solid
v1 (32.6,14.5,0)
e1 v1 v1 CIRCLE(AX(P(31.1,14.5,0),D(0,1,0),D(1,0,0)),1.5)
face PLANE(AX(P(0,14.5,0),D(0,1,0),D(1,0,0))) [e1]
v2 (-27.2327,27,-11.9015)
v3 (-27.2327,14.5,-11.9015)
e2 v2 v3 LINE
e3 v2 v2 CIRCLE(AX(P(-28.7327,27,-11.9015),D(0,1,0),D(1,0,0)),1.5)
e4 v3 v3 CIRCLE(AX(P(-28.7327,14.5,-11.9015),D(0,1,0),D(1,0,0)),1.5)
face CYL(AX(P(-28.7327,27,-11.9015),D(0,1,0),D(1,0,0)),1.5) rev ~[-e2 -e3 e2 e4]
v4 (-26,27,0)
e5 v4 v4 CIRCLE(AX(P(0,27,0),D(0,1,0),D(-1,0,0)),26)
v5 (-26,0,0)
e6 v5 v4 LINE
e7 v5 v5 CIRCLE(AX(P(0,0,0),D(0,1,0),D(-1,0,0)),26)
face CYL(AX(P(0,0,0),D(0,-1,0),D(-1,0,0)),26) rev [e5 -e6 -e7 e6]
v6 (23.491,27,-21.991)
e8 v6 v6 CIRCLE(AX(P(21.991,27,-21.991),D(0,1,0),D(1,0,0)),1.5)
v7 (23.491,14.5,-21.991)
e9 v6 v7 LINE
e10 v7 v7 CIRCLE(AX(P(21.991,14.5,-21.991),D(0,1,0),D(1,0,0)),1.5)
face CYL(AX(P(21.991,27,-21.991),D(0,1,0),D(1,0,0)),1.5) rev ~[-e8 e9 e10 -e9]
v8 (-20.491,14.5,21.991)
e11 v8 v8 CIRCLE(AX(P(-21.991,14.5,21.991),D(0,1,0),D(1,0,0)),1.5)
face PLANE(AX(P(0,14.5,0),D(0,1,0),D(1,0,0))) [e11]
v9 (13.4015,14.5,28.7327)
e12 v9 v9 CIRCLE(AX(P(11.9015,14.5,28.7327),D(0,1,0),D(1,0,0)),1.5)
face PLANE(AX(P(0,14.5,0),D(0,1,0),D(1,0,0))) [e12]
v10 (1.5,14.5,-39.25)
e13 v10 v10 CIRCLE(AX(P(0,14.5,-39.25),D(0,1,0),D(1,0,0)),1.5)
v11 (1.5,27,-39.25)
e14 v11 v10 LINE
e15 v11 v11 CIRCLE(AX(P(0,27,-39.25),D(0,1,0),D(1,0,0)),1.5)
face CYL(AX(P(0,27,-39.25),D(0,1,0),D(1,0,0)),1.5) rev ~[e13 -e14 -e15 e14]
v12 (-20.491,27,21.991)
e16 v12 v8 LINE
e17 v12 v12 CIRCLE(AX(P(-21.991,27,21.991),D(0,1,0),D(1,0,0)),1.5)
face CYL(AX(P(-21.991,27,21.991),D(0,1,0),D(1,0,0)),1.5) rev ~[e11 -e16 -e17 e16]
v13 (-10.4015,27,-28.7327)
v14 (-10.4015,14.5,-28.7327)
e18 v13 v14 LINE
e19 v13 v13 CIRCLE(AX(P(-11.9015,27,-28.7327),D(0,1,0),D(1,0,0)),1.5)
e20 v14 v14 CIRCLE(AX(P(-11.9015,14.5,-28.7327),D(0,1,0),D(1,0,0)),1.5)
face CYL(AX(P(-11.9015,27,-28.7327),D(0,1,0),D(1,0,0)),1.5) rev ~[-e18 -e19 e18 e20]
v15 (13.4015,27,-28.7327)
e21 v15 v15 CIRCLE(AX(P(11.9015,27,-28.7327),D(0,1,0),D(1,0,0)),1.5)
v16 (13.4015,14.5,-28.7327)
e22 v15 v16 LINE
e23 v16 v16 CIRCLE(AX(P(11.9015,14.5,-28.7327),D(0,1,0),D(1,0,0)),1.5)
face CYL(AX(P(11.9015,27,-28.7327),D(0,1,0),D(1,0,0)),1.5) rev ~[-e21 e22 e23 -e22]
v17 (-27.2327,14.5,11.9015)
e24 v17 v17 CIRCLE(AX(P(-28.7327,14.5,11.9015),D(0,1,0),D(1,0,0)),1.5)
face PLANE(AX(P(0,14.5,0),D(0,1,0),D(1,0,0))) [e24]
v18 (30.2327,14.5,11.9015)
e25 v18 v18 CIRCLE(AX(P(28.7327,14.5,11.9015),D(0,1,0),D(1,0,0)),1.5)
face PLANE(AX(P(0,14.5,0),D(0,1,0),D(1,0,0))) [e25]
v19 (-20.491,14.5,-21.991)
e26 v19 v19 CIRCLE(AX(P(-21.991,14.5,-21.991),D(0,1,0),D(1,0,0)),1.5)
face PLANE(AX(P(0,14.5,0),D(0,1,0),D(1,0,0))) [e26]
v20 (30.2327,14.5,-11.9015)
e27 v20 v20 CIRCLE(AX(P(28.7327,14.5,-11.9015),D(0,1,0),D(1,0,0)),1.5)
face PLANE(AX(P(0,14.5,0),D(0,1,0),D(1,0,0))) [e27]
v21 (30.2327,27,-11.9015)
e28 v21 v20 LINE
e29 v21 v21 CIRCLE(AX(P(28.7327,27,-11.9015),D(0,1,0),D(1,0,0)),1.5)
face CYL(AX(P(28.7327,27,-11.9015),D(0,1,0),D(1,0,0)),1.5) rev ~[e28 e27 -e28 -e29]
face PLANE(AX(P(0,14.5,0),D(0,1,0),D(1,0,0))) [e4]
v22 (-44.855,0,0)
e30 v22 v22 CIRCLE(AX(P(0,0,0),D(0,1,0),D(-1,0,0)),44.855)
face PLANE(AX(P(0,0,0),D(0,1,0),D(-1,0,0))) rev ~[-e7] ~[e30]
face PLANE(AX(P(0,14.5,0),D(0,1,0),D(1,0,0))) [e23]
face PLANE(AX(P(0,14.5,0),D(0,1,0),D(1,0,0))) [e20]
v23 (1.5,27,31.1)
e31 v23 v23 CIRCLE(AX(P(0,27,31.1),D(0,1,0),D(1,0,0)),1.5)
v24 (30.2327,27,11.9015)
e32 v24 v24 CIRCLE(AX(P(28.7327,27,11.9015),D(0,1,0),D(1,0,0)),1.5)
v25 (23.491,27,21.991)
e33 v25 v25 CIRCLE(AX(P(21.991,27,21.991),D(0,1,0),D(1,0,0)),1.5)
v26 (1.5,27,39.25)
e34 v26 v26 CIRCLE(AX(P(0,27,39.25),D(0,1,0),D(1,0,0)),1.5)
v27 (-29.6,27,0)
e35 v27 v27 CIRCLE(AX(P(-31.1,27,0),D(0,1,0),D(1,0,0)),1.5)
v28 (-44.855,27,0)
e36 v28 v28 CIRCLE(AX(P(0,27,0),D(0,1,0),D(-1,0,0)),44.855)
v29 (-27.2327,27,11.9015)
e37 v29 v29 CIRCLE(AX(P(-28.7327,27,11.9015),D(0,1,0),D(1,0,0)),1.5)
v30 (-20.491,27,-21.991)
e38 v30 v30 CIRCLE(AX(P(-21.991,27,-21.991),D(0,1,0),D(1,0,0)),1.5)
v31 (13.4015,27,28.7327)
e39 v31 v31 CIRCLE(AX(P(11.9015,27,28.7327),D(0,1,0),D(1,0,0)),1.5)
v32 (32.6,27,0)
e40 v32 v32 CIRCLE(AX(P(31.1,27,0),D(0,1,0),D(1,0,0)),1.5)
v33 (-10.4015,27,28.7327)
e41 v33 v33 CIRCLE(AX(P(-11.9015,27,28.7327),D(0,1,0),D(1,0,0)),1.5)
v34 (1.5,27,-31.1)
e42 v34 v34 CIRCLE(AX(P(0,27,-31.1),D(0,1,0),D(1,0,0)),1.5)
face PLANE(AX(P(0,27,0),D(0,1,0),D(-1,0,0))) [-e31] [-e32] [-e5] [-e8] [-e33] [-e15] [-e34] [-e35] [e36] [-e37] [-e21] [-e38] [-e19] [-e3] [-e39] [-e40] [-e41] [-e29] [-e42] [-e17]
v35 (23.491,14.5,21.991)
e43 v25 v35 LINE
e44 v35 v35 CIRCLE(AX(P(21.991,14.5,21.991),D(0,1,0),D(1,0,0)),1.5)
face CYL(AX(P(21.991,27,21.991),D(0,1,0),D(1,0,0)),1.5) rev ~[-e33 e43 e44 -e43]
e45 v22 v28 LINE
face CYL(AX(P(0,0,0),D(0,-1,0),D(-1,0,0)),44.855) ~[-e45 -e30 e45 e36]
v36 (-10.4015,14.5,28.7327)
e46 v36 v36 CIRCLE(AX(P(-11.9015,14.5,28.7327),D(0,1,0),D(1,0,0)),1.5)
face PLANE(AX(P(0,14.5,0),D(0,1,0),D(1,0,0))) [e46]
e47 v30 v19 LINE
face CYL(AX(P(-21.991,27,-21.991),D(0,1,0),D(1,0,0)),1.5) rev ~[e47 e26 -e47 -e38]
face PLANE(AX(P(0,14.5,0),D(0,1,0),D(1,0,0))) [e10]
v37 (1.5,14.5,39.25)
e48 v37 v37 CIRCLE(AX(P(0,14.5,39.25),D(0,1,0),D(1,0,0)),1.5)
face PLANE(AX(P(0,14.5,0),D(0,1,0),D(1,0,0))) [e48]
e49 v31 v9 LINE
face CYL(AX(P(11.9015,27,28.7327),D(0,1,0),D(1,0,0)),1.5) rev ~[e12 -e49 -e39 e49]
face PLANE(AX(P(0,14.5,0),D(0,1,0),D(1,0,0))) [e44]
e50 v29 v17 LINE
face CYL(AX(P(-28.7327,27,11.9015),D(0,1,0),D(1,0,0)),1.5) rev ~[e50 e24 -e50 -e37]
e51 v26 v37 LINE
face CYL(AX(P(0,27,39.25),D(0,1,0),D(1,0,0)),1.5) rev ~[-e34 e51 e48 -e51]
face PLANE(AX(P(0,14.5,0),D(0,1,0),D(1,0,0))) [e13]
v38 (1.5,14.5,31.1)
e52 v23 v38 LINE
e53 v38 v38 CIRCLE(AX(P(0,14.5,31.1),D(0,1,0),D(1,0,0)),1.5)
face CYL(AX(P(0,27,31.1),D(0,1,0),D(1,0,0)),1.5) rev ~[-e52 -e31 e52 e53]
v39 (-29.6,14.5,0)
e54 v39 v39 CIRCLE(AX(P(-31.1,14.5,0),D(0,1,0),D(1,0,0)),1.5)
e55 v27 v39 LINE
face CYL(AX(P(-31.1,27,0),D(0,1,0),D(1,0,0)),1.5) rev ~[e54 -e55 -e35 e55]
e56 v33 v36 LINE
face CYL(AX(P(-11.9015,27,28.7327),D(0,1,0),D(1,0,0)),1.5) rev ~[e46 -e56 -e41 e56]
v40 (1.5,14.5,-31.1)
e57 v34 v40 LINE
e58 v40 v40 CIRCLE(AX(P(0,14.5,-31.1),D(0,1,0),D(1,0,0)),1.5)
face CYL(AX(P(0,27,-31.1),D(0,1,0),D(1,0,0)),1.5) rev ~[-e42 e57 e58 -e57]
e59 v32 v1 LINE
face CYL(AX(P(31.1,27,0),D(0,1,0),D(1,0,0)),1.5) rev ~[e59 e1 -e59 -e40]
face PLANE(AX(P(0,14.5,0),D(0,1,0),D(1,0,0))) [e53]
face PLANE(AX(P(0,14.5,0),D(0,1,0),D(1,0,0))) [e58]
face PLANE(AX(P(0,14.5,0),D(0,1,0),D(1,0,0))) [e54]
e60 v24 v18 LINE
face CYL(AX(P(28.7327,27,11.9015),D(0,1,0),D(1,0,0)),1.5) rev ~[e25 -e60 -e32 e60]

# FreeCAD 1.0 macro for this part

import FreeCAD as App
import Part
import Sketcher
Q = App.Units.Quantity

doc = App.newDocument("Part")
params = doc.addObject("Spreadsheet::Sheet", "Params")
for row, (alias, value) in enumerate([
    ("sketch1_diameter", "52 mm"),
    ("sketch1_diameter2", "89.71 mm"),
    ("pad1_length", "27 mm"),
    ("sketch2_diameter", "3 mm"),
    ("pocket1_length", "12.5 mm"),
], start=1):
    params.set(f"A{row}", alias)
    params.set(f"B{row}", "=" + value)
    params.setAlias(f"B{row}", alias)

body = doc.addObject("PartDesign::Body", "Body")

# Sketch on XZ plane
sketch1 = doc.addObject("Sketcher::SketchObject", "Sketch")
body.addObject(sketch1)
sketch1.AttachmentSupport = (doc.XZ_Plane, [""])
sketch1.MapMode = "FlatFace"
sketch1.addGeometry(Part.Circle(App.Vector(0, 0, 0), App.Vector(0, 0, 1), 44.855), False)
sketch1.addGeometry(Part.Circle(App.Vector(0, 0, 0), App.Vector(0, 0, 1), 26), False)
sketch1.addConstraint(Sketcher.Constraint("Coincident", 0, 3, -1, 1))
sketch1.addConstraint(Sketcher.Constraint("Coincident", 1, 3, -1, 1))
sketch1.addConstraint(Sketcher.Constraint("Diameter", 1, Q("52 mm")))
sketch1.addConstraint(Sketcher.Constraint("Diameter", 0, Q("89.71 mm")))
sketch1.setExpression("Constraints[2]", "Params.sketch1_diameter")
sketch1.setExpression("Constraints[3]", "Params.sketch1_diameter2")
pad1 = doc.addObject("PartDesign::Pad", "Pad")
body.addObject(pad1)
pad1.Profile = sketch1
pad1.setExpression("Length", "Params.pad1_length")
pad1.Reversed = True

# Sketch on XZ plane
sketch2 = doc.addObject("Sketcher::SketchObject", "Sketch001")
body.addObject(sketch2)
sketch2.AttachmentSupport = (doc.XZ_Plane, [""])
sketch2.MapMode = "FlatFace"
sketch2.AttachmentOffset = App.Placement(App.Vector(0, 0, -27), App.Rotation())
sketch2.addGeometry(Part.Circle(App.Vector(0, -31.1, 0), App.Vector(0, 0, 1), 1.5), False)
sketch2.addGeometry(Part.Circle(App.Vector(-11.9015, -28.7327, 0), App.Vector(0, 0, 1), 1.5), False)
sketch2.addGeometry(Part.Circle(App.Vector(-21.991, -21.991, 0), App.Vector(0, 0, 1), 1.5), False)
sketch2.addGeometry(Part.Circle(App.Vector(-28.7327, -11.9015, 0), App.Vector(0, 0, 1), 1.5), False)
sketch2.addGeometry(Part.Circle(App.Vector(-31.1, 0, 0), App.Vector(0, 0, 1), 1.5), False)
sketch2.addGeometry(Part.Circle(App.Vector(-28.7327, 11.9015, 0), App.Vector(0, 0, 1), 1.5), False)
sketch2.addGeometry(Part.Circle(App.Vector(-21.991, 21.991, 0), App.Vector(0, 0, 1), 1.5), False)
sketch2.addGeometry(Part.Circle(App.Vector(-11.9015, 28.7327, 0), App.Vector(0, 0, 1), 1.5), False)
sketch2.addGeometry(Part.Circle(App.Vector(0, 31.1, 0), App.Vector(0, 0, 1), 1.5), False)
sketch2.addGeometry(Part.Circle(App.Vector(11.9015, 28.7327, 0), App.Vector(0, 0, 1), 1.5), False)
sketch2.addGeometry(Part.Circle(App.Vector(21.991, 21.991, 0), App.Vector(0, 0, 1), 1.5), False)
sketch2.addGeometry(Part.Circle(App.Vector(28.7327, 11.9015, 0), App.Vector(0, 0, 1), 1.5), False)
sketch2.addGeometry(Part.Circle(App.Vector(31.1, 0, 0), App.Vector(0, 0, 1), 1.5), False)
sketch2.addGeometry(Part.Circle(App.Vector(28.7327, -11.9015, 0), App.Vector(0, 0, 1), 1.5), False)
sketch2.addGeometry(Part.Circle(App.Vector(21.991, -21.991, 0), App.Vector(0, 0, 1), 1.5), False)
sketch2.addGeometry(Part.Circle(App.Vector(11.9015, -28.7327, 0), App.Vector(0, 0, 1), 1.5), False)
sketch2.addGeometry(Part.Circle(App.Vector(0, 39.25, 0), App.Vector(0, 0, 1), 1.5), False)
sketch2.addGeometry(Part.Circle(App.Vector(0, -39.25, 0), App.Vector(0, 0, 1), 1.5), False)
sketch2.addConstraint(Sketcher.Constraint("Equal", 0, 1))
sketch2.addConstraint(Sketcher.Constraint("Equal", 1, 2))
sketch2.addConstraint(Sketcher.Constraint("Equal", 2, 3))
sketch2.addConstraint(Sketcher.Constraint("Equal", 3, 4))
sketch2.addConstraint(Sketcher.Constraint("Equal", 4, 5))
sketch2.addConstraint(Sketcher.Constraint("Equal", 5, 6))
sketch2.addConstraint(Sketcher.Constraint("Equal", 6, 7))
sketch2.addConstraint(Sketcher.Constraint("Equal", 7, 8))
sketch2.addConstraint(Sketcher.Constraint("Equal", 8, 9))
sketch2.addConstraint(Sketcher.Constraint("Equal", 9, 10))
sketch2.addConstraint(Sketcher.Constraint("Equal", 10, 11))
sketch2.addConstraint(Sketcher.Constraint("Equal", 11, 12))
sketch2.addConstraint(Sketcher.Constraint("Equal", 12, 13))
sketch2.addConstraint(Sketcher.Constraint("Equal", 13, 14))
sketch2.addConstraint(Sketcher.Constraint("Equal", 14, 15))
sketch2.addConstraint(Sketcher.Constraint("Equal", 15, 16))
sketch2.addConstraint(Sketcher.Constraint("Equal", 16, 17))
sketch2.addConstraint(Sketcher.Constraint("Symmetric", 0, 3, 8, 3, -1, 1))
sketch2.addConstraint(Sketcher.Constraint("Symmetric", 1, 3, 9, 3, -1, 1))
sketch2.addConstraint(Sketcher.Constraint("Symmetric", 2, 3, 10, 3, -1, 1))
sketch2.addConstraint(Sketcher.Constraint("Symmetric", 3, 3, 11, 3, -1, 1))
sketch2.addConstraint(Sketcher.Constraint("Symmetric", 4, 3, 12, 3, -1, 1))
sketch2.addConstraint(Sketcher.Constraint("Symmetric", 5, 3, 13, 3, -1, 1))
sketch2.addConstraint(Sketcher.Constraint("Symmetric", 6, 3, 14, 3, -1, 1))
sketch2.addConstraint(Sketcher.Constraint("Symmetric", 7, 3, 15, 3, -1, 1))
sketch2.addConstraint(Sketcher.Constraint("Symmetric", 16, 3, 17, 3, -1, 1))
sketch2.addConstraint(Sketcher.Constraint("Symmetric", 7, 3, 9, 3, -2))
sketch2.addConstraint(Sketcher.Constraint("Symmetric", 6, 3, 10, 3, -2))
sketch2.addConstraint(Sketcher.Constraint("Symmetric", 5, 3, 11, 3, -2))
sketch2.addConstraint(Sketcher.Constraint("PointOnObject", 0, 3, -2))
sketch2.addConstraint(Sketcher.Constraint("PointOnObject", 4, 3, -1))
sketch2.addConstraint(Sketcher.Constraint("PointOnObject", 16, 3, -2))
sketch2.addConstraint(Sketcher.Constraint("Diameter", 0, Q("3 mm")))
sketch2.addConstraint(Sketcher.Constraint("DistanceY", 8, 3, 16, 3, Q("8.15 mm")))
sketch2.addConstraint(Sketcher.Constraint("DistanceY", 0, 3, -1, 1, Q("31.1 mm")))
sketch2.addConstraint(Sketcher.Constraint("DistanceX", 4, 3, -1, 1, Q("31.1 mm")))
sketch2.addConstraint(Sketcher.Constraint("DistanceX", 2, 3, -1, 1, Q("21.991 mm")))
sketch2.addConstraint(Sketcher.Constraint("DistanceY", 2, 3, -1, 1, Q("21.991 mm")))
sketch2.addConstraint(Sketcher.Constraint("DistanceY", 3, 3, 5, 3, Q("23.803 mm")))
sketch2.addConstraint(Sketcher.Constraint("DistanceX", 7, 3, 9, 3, Q("23.803 mm")))
sketch2.addConstraint(Sketcher.Constraint("DistanceY", 1, 3, -1, 1, Q("28.7327 mm")))
sketch2.addConstraint(Sketcher.Constraint("DistanceX", 3, 3, -1, 1, Q("28.7327 mm")))
sketch2.setExpression("Constraints[32]", "Params.sketch2_diameter")
pocket1 = doc.addObject("PartDesign::Pocket", "Pocket")
body.addObject(pocket1)
pocket1.Profile = sketch2
pocket1.setExpression("Length", "Params.pocket1_length")
pocket1.Reversed = True

doc.recompute()
